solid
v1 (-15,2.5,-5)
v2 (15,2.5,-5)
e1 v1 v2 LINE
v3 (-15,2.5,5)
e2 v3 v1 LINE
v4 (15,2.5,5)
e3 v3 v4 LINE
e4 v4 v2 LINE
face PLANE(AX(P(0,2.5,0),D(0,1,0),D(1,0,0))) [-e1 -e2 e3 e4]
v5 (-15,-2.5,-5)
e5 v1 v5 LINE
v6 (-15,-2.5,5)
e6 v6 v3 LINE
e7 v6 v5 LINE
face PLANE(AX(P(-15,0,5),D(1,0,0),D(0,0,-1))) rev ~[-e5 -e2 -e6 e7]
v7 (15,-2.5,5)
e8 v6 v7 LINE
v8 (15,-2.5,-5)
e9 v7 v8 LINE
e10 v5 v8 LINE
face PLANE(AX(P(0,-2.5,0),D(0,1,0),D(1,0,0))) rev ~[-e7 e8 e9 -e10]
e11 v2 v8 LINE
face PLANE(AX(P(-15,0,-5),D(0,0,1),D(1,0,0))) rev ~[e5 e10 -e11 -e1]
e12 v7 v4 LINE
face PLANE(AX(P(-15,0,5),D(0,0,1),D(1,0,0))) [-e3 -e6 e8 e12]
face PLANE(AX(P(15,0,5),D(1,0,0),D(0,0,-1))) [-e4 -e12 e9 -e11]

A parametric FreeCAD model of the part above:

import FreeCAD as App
import Part
import Sketcher
from FreeCAD import Vector


def add_polygon(sketch, points):
    """Adds a closed chain of lines whose ends are joined by coincident constraints."""
    first, n = sketch.GeometryCount, len(points)
    for a, b in zip(points, points[1:] + points[:1]):
        sketch.addGeometry(Part.LineSegment(App.Vector(*a, 0), App.Vector(*b, 0)), False)
    for i in range(n):
        sketch.addConstraint(Sketcher.Constraint("Coincident", first + i, 2, first + (i + 1) % n, 1))

doc = App.newDocument("Part")
body = doc.addObject("PartDesign::Body", "Body")

# Sketch on XZ plane
sketch1 = body.newObject("Sketcher::SketchObject", "Sketch")
sketch1.AttachmentSupport = (doc.getObject("XZ_Plane"), [""])
sketch1.MapMode = "FlatFace"
add_polygon(sketch1, [(-15, -5), (-15, 5), (15, 5), (15, -5)])  # lines 0-3
sketch1.addConstraint(Sketcher.Constraint("Vertical", 0))
sketch1.addConstraint(Sketcher.Constraint("Horizontal", 1))
sketch1.addConstraint(Sketcher.Constraint("Vertical", 2))
sketch1.addConstraint(Sketcher.Constraint("Horizontal", 3))
sketch1.addConstraint(Sketcher.Constraint("Symmetric", 0, 2, 2, 2, -1, 1))
sketch1.addConstraint(Sketcher.Constraint("DistanceX", 1, 1, 1, 2, 30.0))
sketch1.addConstraint(Sketcher.Constraint("DistanceY", 0, 1, 0, 2, 10.0))
pad1 = body.newObject("PartDesign::Pad", "Pad")
pad1.Profile = sketch1
pad1.Length = 5
pad1.Midplane = True

doc.recompute()
